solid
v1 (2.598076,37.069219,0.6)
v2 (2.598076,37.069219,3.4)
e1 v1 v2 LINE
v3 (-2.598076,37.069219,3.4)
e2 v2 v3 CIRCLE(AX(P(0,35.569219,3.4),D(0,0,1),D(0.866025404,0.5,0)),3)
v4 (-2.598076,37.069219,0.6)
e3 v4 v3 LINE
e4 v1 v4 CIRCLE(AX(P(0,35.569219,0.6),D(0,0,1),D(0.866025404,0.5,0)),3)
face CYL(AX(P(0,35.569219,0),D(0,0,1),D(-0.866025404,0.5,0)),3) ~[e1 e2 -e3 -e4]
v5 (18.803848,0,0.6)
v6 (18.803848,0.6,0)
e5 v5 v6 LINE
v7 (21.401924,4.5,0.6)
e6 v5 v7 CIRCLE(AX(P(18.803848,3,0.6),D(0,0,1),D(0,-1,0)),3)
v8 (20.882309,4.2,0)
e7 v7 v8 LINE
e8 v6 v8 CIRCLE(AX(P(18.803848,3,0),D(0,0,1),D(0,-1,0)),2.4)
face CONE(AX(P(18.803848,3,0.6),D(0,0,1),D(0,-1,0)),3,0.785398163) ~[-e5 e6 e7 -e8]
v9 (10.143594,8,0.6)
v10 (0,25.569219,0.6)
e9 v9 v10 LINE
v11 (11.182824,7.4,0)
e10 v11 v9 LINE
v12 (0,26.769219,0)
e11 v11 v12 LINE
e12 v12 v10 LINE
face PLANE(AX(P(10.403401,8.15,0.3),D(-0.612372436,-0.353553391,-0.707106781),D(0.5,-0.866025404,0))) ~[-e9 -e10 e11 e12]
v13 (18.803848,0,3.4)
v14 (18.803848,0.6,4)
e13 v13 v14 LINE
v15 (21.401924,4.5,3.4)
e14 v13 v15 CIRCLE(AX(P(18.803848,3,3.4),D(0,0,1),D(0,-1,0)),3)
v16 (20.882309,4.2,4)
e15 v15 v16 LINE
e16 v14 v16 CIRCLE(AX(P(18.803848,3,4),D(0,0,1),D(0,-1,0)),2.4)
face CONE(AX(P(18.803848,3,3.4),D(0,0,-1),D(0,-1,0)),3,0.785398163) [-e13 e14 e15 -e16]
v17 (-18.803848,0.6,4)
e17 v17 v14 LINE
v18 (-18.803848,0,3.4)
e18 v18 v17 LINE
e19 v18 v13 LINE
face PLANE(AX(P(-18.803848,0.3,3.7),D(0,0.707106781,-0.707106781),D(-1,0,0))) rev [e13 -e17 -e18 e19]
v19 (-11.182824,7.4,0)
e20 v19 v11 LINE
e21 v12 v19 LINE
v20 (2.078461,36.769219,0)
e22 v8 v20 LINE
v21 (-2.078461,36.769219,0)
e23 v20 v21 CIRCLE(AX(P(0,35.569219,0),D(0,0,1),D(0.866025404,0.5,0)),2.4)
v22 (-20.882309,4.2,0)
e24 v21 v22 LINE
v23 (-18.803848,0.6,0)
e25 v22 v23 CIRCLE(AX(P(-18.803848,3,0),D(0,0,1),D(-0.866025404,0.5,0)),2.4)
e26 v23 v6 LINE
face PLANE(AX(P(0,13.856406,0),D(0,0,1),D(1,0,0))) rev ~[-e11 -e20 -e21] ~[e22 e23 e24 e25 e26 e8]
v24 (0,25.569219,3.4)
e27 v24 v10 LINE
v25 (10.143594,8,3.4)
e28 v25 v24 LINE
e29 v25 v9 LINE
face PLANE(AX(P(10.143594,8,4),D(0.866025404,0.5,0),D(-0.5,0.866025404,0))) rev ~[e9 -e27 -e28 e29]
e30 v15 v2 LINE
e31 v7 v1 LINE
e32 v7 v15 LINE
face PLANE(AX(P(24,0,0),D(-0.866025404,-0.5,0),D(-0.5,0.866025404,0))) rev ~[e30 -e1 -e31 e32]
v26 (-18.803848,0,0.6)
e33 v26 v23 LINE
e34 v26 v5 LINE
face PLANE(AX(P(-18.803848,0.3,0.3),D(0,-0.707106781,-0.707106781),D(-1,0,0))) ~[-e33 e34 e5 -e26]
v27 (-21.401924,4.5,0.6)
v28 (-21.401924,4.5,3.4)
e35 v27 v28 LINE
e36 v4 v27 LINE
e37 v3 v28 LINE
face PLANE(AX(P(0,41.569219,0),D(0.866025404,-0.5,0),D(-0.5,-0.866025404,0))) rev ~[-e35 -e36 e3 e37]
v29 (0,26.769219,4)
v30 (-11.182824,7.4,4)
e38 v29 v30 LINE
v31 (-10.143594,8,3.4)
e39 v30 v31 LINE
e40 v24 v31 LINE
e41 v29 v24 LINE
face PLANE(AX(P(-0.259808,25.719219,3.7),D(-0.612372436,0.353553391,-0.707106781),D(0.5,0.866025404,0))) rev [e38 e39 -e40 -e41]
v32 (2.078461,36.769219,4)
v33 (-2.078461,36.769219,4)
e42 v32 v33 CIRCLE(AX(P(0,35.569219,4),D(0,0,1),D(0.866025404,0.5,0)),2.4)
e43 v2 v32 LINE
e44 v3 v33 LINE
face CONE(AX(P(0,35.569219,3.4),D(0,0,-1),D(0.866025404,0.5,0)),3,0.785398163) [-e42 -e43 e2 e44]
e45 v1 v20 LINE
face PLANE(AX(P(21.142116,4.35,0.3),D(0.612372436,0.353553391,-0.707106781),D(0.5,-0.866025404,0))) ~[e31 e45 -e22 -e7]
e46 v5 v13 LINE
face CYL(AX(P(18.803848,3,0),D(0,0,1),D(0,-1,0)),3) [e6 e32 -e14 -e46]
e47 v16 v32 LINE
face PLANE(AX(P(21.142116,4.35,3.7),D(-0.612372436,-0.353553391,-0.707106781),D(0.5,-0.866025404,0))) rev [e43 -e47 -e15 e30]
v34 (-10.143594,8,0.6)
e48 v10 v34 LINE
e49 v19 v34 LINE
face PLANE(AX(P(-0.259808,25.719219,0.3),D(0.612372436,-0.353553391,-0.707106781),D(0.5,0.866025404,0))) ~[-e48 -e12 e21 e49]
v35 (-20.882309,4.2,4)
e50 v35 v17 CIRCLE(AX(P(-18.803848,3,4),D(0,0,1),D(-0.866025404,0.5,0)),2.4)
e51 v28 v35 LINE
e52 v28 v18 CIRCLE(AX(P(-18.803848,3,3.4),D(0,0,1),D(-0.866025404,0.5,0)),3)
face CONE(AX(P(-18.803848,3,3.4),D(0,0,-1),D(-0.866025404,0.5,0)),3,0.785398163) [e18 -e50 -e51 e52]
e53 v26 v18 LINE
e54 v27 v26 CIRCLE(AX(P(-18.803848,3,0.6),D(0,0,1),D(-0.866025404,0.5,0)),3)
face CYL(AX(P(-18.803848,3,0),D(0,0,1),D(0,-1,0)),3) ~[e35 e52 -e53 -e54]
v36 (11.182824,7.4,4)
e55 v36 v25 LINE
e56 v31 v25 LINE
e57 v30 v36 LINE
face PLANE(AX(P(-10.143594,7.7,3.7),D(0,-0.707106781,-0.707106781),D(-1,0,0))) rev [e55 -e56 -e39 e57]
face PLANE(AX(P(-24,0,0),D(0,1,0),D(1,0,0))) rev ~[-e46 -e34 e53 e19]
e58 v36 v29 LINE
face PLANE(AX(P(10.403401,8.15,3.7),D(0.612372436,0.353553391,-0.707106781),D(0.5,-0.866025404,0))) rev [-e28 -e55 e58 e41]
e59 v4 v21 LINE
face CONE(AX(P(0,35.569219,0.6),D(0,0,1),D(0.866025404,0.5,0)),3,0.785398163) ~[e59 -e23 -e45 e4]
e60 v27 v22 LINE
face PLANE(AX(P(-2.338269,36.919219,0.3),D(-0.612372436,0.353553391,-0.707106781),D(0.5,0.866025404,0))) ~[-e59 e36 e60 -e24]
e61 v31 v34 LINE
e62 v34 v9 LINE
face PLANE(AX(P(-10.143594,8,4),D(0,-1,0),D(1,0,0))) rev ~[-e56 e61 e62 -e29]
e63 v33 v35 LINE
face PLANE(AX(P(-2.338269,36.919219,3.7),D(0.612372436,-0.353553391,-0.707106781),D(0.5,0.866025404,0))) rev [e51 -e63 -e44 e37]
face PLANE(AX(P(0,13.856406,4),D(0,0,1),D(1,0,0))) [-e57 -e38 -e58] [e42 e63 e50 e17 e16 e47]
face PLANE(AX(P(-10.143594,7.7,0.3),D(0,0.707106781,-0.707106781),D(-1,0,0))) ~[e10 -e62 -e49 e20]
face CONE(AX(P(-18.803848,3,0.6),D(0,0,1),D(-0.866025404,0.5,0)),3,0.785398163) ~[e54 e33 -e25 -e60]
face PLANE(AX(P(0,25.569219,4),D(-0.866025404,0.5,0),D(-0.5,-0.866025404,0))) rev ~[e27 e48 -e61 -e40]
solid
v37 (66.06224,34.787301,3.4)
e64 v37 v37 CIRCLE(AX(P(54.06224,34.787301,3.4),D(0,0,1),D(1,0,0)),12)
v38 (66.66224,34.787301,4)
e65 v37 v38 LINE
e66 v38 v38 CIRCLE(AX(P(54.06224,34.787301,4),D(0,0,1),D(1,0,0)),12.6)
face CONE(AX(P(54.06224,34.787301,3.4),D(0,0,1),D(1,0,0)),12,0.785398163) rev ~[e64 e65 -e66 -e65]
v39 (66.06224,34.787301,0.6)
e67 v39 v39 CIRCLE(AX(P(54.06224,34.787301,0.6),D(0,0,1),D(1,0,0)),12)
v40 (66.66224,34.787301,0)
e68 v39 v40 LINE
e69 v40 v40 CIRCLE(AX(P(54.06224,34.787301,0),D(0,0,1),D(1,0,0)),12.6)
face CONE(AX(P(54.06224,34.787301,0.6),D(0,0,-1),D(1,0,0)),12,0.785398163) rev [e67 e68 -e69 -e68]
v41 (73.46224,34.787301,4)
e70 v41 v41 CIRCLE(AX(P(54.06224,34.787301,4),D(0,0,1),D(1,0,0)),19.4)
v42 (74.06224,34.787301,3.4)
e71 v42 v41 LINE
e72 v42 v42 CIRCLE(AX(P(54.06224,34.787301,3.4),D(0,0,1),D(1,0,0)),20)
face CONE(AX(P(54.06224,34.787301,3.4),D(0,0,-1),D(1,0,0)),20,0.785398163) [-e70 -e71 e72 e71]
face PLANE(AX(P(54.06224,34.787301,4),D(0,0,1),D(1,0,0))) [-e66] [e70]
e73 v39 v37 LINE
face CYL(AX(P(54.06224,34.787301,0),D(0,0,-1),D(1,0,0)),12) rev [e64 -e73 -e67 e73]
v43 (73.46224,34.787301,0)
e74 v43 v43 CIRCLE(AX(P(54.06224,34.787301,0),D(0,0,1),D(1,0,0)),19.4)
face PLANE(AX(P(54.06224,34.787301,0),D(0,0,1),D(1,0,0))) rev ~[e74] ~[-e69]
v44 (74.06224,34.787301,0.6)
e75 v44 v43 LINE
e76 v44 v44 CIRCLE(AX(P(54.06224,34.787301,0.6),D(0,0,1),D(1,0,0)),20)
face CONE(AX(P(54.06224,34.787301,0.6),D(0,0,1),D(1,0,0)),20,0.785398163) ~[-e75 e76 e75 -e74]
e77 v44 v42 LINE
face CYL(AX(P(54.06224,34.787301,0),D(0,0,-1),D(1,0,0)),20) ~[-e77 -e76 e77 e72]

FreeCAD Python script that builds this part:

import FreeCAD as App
import Part
import Sketcher

V = App.Vector
Q = App.Units.Quantity


def edges_at(feature, points):
    """Names of the edges that pass closest to the given points."""
    edges = feature.Shape.Edges
    near = lambda p: min(range(len(edges)), key=lambda i: edges[i].distToShape(Part.Vertex(*p))[0])
    return sorted({f"Edge{near(p) + 1}" for p in points})

doc = App.newDocument("Part")
body = doc.addObject("PartDesign::Body", "Body")

# Sketch on XY plane
sketch1 = doc.addObject("Sketcher::SketchObject", "Sketch")
body.addObject(sketch1)
sketch1.AttachmentSupport = (doc.XY_Plane, [""])
sketch1.MapMode = "FlatFace"
sketch1.addGeometry([
    Part.LineSegment(V(-24, 0, 0), V(24, 0, 0)),
    Part.LineSegment(V(24, 0, 0), V(0, 42, 0)),
    Part.LineSegment(V(0, 42, 0), V(-24, 0, 0)),
], False)
sketch1.addConstraint([
    Sketcher.Constraint("Coincident", 0, 2, 1, 1),
    Sketcher.Constraint("Coincident", 1, 2, 2, 1),
    Sketcher.Constraint("Coincident", 2, 2, 0, 1),
    Sketcher.Constraint("Horizontal", 0),
    Sketcher.Constraint("Symmetric", 0, 2, 2, 2, -1, 1),
    Sketcher.Constraint("PointOnObject", 1, 2, -2),
    Sketcher.Constraint("DistanceX", 0, 1, 0, 2, 48.0),
    Sketcher.Constraint("Angle", 1, Q("120 deg")),
])
pad1 = doc.addObject("PartDesign::Pad", "Pad")
body.addObject(pad1)
pad1.Profile = sketch1
pad1.Length = 4

# Sketch on XY plane
sketch2 = doc.addObject("Sketcher::SketchObject", "Sketch001")
body.addObject(sketch2)
sketch2.AttachmentSupport = (doc.XY_Plane, [""])
sketch2.MapMode = "FlatFace"
sketch2.AttachmentOffset = App.Placement(V(0, 0, 4), App.Rotation())
sketch2.addGeometry([
    Part.LineSegment(V(0, 26, 0), V(-10, 8, 0)),
    Part.LineSegment(V(-10, 8, 0), V(10, 8, 0)),
    Part.LineSegment(V(10, 8, 0), V(0, 26, 0)),
], False)
sketch2.addConstraint([
    Sketcher.Constraint("Coincident", 0, 2, 1, 1),
    Sketcher.Constraint("Coincident", 1, 2, 2, 1),
    Sketcher.Constraint("Coincident", 2, 2, 0, 1),
    Sketcher.Constraint("Horizontal", 1),
    Sketcher.Constraint("PointOnObject", 2, 2, -2),
    Sketcher.Constraint("Equal", 0, 2),
    Sketcher.Constraint("Angle", 0, Q("-120 deg")),
    Sketcher.Constraint("DistanceY", -1, 1, 0, 2, 8.0),
    Sketcher.Constraint("DistanceX", 1, 1, 1, 2, 20.287187),
])
pocket1 = doc.addObject("PartDesign::Pocket", "Pocket")
body.addObject(pocket1)
pocket1.Profile = sketch2
pocket1.Length = 25
doc.recompute()

fillet = doc.addObject("PartDesign::Fillet", "Fillet")
body.addObject(fillet)
fillet.Base = (pocket1, edges_at(pocket1, [(-24, 0, 2), (24, 0, 2), (0, 41.569, 2)]))
fillet.Radius = 3
doc.recompute()

chamfer = doc.addObject("PartDesign::Chamfer", "Chamfer")
body.addObject(chamfer)
chamfer.Base = (fillet, edges_at(fillet, [
    (0, 0, 4),
    (21.402, 1.5, 4),
    (-21.402, 1.5, 4),
    (12, 20.785, 4),
    (-12, 20.785, 4),
    (0, 38.569, 4),
    (5.072, 16.785, 4),
    (-5.072, 16.785, 4),
    (0, 8, 4),
    (0, 0, 0),
    (-21.402, 1.5, 0),
    (21.402, 1.5, 0),
    (-12, 20.785, 0),
    (12, 20.785, 0),
    (0, 38.569, 0),
    (5.072, 16.785, 0),
    (-5.072, 16.785, 0),
    (0, 8, 0),
]))
chamfer.Size = 0.6
body2 = doc.addObject("PartDesign::Body", "Body001")

# Sketch on XY plane
sketch3 = doc.addObject("Sketcher::SketchObject", "Sketch002")
body2.addObject(sketch3)
sketch3.AttachmentSupport = (doc.getObject("XY_Plane001"), [""])
sketch3.MapMode = "FlatFace"
sketch3.addGeometry([
    Part.Circle(V(54, 35, 0), V(0, 0, 1), 20),
    Part.Circle(V(54, 35, 0), V(0, 0, 1), 12),
], False)
sketch3.addConstraint([
    Sketcher.Constraint("Coincident", 1, 3, 0, 3),
    Sketcher.Constraint("Diameter", 0, 40.0),
    Sketcher.Constraint("Diameter", 1, 24.0),
    Sketcher.Constraint("DistanceY", -1, 1, 0, 3, 34.787301),
    Sketcher.Constraint("DistanceX", -1, 1, 0, 3, 54.06224),
])
pad2 = doc.addObject("PartDesign::Pad", "Pad001")
body2.addObject(pad2)
pad2.Profile = sketch3
pad2.Length = 4
doc.recompute()

chamfer2 = doc.addObject("PartDesign::Chamfer", "Chamfer001")
body2.addObject(chamfer2)
chamfer2.Base = (pad2, edges_at(pad2, [
    (34.062, 34.787, 4),
    (42.062, 34.787, 4),
    (34.062, 34.787, 0),
    (42.062, 34.787, 0),
]))
chamfer2.Size = 0.6

doc.recompute()
